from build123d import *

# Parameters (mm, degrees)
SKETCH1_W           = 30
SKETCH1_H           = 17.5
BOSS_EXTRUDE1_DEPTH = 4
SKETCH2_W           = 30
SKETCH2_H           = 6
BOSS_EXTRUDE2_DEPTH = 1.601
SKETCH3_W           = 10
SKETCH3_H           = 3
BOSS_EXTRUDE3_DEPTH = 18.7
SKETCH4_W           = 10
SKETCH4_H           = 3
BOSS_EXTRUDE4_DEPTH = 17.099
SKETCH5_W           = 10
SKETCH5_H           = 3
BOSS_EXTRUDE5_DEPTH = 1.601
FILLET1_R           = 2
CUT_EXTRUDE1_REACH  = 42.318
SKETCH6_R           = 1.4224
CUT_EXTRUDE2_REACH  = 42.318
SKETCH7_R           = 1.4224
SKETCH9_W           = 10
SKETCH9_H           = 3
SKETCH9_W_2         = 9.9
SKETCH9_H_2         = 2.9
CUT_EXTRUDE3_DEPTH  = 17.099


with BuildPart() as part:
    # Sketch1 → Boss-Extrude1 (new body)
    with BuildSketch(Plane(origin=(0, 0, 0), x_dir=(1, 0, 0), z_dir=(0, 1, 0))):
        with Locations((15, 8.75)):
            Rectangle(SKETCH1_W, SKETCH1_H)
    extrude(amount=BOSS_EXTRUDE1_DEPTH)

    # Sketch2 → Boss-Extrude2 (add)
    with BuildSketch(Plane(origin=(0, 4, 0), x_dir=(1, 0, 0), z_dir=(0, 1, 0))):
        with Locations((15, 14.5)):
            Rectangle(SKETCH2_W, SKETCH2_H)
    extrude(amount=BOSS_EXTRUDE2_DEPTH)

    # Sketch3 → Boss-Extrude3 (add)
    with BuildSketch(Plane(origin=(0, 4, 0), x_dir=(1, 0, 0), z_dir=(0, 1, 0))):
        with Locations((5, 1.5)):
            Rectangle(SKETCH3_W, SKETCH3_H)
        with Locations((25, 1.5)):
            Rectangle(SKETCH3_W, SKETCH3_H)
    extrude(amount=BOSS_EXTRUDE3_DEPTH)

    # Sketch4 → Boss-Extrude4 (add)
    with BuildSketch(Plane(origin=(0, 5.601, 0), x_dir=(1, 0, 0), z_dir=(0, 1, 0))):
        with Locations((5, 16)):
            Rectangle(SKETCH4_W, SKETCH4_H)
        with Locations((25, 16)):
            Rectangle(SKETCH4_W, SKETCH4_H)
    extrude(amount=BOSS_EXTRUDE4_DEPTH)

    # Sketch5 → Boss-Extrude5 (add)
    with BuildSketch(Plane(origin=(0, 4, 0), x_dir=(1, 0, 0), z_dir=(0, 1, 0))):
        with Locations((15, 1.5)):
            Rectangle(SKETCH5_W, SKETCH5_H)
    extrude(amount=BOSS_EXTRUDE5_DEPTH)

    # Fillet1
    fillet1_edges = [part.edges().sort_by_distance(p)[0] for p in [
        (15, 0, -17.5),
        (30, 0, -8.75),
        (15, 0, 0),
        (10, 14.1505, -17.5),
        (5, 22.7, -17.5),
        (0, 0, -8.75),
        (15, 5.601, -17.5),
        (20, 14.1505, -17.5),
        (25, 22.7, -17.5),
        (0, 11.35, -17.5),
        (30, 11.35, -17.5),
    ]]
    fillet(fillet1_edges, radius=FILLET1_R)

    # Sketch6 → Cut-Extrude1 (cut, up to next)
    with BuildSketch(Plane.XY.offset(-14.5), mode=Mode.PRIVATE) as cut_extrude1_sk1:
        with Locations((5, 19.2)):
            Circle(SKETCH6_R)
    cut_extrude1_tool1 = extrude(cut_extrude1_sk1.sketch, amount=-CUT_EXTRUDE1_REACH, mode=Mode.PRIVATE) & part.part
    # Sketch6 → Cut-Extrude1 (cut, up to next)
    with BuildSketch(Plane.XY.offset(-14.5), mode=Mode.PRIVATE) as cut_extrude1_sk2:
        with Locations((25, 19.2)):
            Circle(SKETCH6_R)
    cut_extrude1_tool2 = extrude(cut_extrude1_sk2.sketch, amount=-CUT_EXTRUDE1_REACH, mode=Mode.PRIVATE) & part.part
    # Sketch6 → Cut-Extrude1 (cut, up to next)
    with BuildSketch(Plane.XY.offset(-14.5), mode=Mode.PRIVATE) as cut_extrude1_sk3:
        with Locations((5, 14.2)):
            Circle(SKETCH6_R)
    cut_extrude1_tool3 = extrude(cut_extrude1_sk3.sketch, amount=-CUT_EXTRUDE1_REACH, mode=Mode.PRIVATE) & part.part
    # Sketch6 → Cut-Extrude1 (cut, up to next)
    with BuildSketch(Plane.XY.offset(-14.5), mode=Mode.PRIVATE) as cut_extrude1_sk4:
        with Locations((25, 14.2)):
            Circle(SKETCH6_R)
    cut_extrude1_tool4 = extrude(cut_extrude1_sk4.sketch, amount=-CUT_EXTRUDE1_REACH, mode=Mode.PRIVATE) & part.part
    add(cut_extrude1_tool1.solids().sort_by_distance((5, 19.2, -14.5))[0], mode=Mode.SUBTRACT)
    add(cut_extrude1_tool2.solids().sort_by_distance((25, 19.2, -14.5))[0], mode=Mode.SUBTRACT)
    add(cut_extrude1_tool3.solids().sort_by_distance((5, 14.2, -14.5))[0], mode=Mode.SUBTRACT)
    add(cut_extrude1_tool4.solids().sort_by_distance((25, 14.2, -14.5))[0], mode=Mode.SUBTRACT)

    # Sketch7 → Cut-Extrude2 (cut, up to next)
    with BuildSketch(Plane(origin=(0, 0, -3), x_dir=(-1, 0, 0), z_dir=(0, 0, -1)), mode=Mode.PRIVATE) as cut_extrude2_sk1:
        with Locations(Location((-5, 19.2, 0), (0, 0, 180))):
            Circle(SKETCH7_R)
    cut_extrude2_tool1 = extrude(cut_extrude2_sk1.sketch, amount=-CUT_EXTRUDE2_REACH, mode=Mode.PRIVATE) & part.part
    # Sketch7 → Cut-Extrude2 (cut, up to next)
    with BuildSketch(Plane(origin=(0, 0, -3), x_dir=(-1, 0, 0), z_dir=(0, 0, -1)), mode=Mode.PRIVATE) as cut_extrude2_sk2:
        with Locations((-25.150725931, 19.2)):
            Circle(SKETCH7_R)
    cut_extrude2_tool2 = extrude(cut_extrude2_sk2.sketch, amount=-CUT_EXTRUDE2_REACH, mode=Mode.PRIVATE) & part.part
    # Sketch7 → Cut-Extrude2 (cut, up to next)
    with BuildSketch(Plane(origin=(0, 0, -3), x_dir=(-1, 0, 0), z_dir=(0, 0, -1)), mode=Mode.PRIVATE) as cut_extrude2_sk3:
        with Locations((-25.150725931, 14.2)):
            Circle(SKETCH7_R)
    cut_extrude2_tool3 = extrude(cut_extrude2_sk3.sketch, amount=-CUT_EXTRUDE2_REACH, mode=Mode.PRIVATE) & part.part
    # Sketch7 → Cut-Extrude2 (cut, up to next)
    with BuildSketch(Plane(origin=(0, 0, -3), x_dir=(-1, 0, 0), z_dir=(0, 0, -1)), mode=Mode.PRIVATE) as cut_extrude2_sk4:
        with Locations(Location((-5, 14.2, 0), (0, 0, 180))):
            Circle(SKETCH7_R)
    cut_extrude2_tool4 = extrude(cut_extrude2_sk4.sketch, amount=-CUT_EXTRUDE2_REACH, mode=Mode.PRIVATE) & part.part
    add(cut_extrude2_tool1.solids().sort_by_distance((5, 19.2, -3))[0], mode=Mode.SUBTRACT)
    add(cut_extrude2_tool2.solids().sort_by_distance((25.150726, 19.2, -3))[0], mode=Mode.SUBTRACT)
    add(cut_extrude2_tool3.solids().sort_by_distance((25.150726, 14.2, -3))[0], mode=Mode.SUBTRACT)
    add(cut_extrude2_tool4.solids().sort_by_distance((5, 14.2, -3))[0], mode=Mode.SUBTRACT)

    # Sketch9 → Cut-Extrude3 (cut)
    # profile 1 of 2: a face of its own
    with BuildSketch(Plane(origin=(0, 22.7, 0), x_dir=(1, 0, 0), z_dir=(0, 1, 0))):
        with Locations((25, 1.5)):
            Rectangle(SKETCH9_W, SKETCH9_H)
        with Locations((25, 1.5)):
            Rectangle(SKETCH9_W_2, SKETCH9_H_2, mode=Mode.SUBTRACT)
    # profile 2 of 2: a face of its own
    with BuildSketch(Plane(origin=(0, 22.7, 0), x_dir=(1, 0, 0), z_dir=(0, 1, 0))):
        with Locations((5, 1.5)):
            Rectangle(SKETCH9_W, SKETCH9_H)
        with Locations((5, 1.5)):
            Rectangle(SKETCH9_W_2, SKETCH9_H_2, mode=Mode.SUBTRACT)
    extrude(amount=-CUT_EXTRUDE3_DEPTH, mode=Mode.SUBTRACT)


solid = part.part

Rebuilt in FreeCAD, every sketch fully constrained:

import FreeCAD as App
import Part
import Sketcher

V = App.Vector
Q = App.Units.Quantity


def edges_at(feature, points):
    """Names of the edges that pass closest to the given points."""
    edges = feature.Shape.Edges
    near = lambda p: min(range(len(edges)), key=lambda i: edges[i].distToShape(Part.Vertex(*p))[0])
    return sorted({f"Edge{near(p) + 1}" for p in points})


def add_polygon(sketch, points):
    """Adds a closed chain of lines whose ends are joined by coincident constraints."""
    first, n = sketch.GeometryCount, len(points)
    for a, b in zip(points, points[1:] + points[:1]):
        sketch.addGeometry(Part.LineSegment(App.Vector(*a, 0), App.Vector(*b, 0)), False)
    for i in range(n):
        sketch.addConstraint(Sketcher.Constraint("Coincident", first + i, 2, first + (i + 1) % n, 1))

doc = App.newDocument("Part")
body = doc.addObject("PartDesign::Body", "Body")

sketch1 = body.newObject("Sketcher::SketchObject", "Sketch")
sketch1.AttachmentSupport = (doc.getObject("XZ_Plane"), [""])
sketch1.MapMode = "FlatFace"
add_polygon(sketch1, [(0, -18), (0, 0), (30, 0), (30, -18)])
sketch1.addConstraint(Sketcher.Constraint("Vertical", 0))
sketch1.addConstraint(Sketcher.Constraint("Horizontal", 1))
sketch1.addConstraint(Sketcher.Constraint("Vertical", 2))
sketch1.addConstraint(Sketcher.Constraint("Horizontal", 3))
sketch1.addConstraint(Sketcher.Constraint("Coincident", 0, 2, -1, 1))
sketch1.addConstraint(Sketcher.Constraint("DistanceX", 1, 1, 1, 2, Q("30 mm")))
sketch1.addConstraint(Sketcher.Constraint("DistanceY", 0, 1, 0, 2, Q("17.5 mm")))
pad1 = body.newObject("PartDesign::Pad", "Pad")
pad1.Profile = sketch1
pad1.Length = 4
pad1.Reversed = True

sketch2 = body.newObject("Sketcher::SketchObject", "Sketch001")
sketch2.AttachmentSupport = (doc.getObject("XZ_Plane"), [""])
sketch2.MapMode = "FlatFace"
sketch2.AttachmentOffset = App.Placement(V(0, 0, -4), App.Rotation())
add_polygon(sketch2, [(0, -18), (0, -12), (30, -12), (30, -18)])
sketch2.addConstraint(Sketcher.Constraint("Vertical", 0))
sketch2.addConstraint(Sketcher.Constraint("Horizontal", 1))
sketch2.addConstraint(Sketcher.Constraint("Vertical", 2))
sketch2.addConstraint(Sketcher.Constraint("Horizontal", 3))
sketch2.addConstraint(Sketcher.Constraint("PointOnObject", 0, 2, -2))
sketch2.addConstraint(Sketcher.Constraint("DistanceX", 1, 1, 1, 2, Q("30 mm")))
sketch2.addConstraint(Sketcher.Constraint("DistanceY", 0, 1, 0, 2, Q("6 mm")))
sketch2.addConstraint(Sketcher.Constraint("DistanceY", 0, 2, -1, 1, Q("11.5 mm")))
pad2 = body.newObject("PartDesign::Pad", "Pad001")
pad2.Profile = sketch2
pad2.Length = 1.601
pad2.Reversed = True

sketch3 = body.newObject("Sketcher::SketchObject", "Sketch002")
sketch3.AttachmentSupport = (doc.getObject("XZ_Plane"), [""])
sketch3.MapMode = "FlatFace"
sketch3.AttachmentOffset = App.Placement(V(0, 0, -4), App.Rotation())
add_polygon(sketch3, [(0, -3), (0, 0), (10, 0), (10, -3)])
add_polygon(sketch3, [(20, -3), (20, 0), (30, 0), (30, -3)])
sketch3.addConstraint(Sketcher.Constraint("Vertical", 0))
sketch3.addConstraint(Sketcher.Constraint("Horizontal", 1))
sketch3.addConstraint(Sketcher.Constraint("Vertical", 2))
sketch3.addConstraint(Sketcher.Constraint("Horizontal", 3))
sketch3.addConstraint(Sketcher.Constraint("Vertical", 4))
sketch3.addConstraint(Sketcher.Constraint("Horizontal", 5))
sketch3.addConstraint(Sketcher.Constraint("Vertical", 6))
sketch3.addConstraint(Sketcher.Constraint("Horizontal", 7))
sketch3.addConstraint(Sketcher.Constraint("Coincident", 0, 2, -1, 1))
sketch3.addConstraint(Sketcher.Constraint("PointOnObject", 4, 2, -1))
sketch3.addConstraint(Sketcher.Constraint("Horizontal", 3, 2, 6, 2))
sketch3.addConstraint(Sketcher.Constraint("Equal", 3, 5))
sketch3.addConstraint(Sketcher.Constraint("DistanceX", 1, 1, 1, 2, Q("10 mm")))
sketch3.addConstraint(Sketcher.Constraint("DistanceY", 0, 1, 0, 2, Q("3 mm")))
sketch3.addConstraint(Sketcher.Constraint("DistanceX", -1, 1, 4, 2, Q("20 mm")))
pad3 = body.newObject("PartDesign::Pad", "Pad002")
pad3.Profile = sketch3
pad3.Length = 18.7
pad3.Reversed = True

sketch4 = body.newObject("Sketcher::SketchObject", "Sketch003")
sketch4.AttachmentSupport = (doc.getObject("XZ_Plane"), [""])
sketch4.MapMode = "FlatFace"
sketch4.AttachmentOffset = App.Placement(V(0, 0, -5.601), App.Rotation())
add_polygon(sketch4, [(0, -17.5), (0, -14.5), (10, -14.5), (10, -17.5)])
add_polygon(sketch4, [(20, -17.5), (20, -14.5), (30, -14.5), (30, -17.5)])
sketch4.addConstraint(Sketcher.Constraint("Vertical", 0))
sketch4.addConstraint(Sketcher.Constraint("Horizontal", 1))
sketch4.addConstraint(Sketcher.Constraint("Vertical", 2))
sketch4.addConstraint(Sketcher.Constraint("Horizontal", 3))
sketch4.addConstraint(Sketcher.Constraint("Vertical", 4))
sketch4.addConstraint(Sketcher.Constraint("Horizontal", 5))
sketch4.addConstraint(Sketcher.Constraint("Vertical", 6))
sketch4.addConstraint(Sketcher.Constraint("Horizontal", 7))
sketch4.addConstraint(Sketcher.Constraint("PointOnObject", 0, 2, -2))
sketch4.addConstraint(Sketcher.Constraint("Horizontal", 1, 2, 4, 2))
sketch4.addConstraint(Sketcher.Constraint("Horizontal", 3, 2, 6, 2))
sketch4.addConstraint(Sketcher.Constraint("Equal", 3, 5))
sketch4.addConstraint(Sketcher.Constraint("DistanceX", 1, 1, 1, 2, Q("10 mm")))
sketch4.addConstraint(Sketcher.Constraint("DistanceY", 0, 1, 0, 2, Q("3 mm")))
sketch4.addConstraint(Sketcher.Constraint("DistanceX", -1, 1, 4, 2, Q("20 mm")))
sketch4.addConstraint(Sketcher.Constraint("DistanceY", 0, 2, -1, 1, Q("14.5 mm")))
pad4 = body.newObject("PartDesign::Pad", "Pad003")
pad4.Profile = sketch4
pad4.Length = 17.099
pad4.Reversed = True

sketch5 = body.newObject("Sketcher::SketchObject", "Sketch004")
sketch5.AttachmentSupport = (doc.getObject("XZ_Plane"), [""])
sketch5.MapMode = "FlatFace"
sketch5.AttachmentOffset = App.Placement(V(0, 0, -4), App.Rotation())
add_polygon(sketch5, [(10, -3), (10, 0), (20, 0), (20, -3)])
sketch5.addConstraint(Sketcher.Constraint("Vertical", 0))
sketch5.addConstraint(Sketcher.Constraint("Horizontal", 1))
sketch5.addConstraint(Sketcher.Constraint("Vertical", 2))
sketch5.addConstraint(Sketcher.Constraint("Horizontal", 3))
sketch5.addConstraint(Sketcher.Constraint("PointOnObject", 0, 2, -1))
sketch5.addConstraint(Sketcher.Constraint("DistanceX", 1, 1, 1, 2, Q("10 mm")))
sketch5.addConstraint(Sketcher.Constraint("DistanceY", 0, 1, 0, 2, Q("3 mm")))
sketch5.addConstraint(Sketcher.Constraint("DistanceX", -1, 1, 0, 2, Q("10 mm")))
pad5 = body.newObject("PartDesign::Pad", "Pad004")
pad5.Profile = sketch5
pad5.Length = 1.601
pad5.Reversed = True
doc.recompute()

fillet = body.newObject("PartDesign::Fillet", "Fillet")
fillet.Base = (pad5, edges_at(pad5, [
    (15, 0, -17.5),
    (30, 0, -8.75),
    (15, 0, 0),
    (10, 14.15, -17.5),
    (5, 22.7, -17.5),
    (0, 0, -8.75),
    (15, 5.601, -17.5),
    (20, 14.15, -17.5),
    (25, 22.7, -17.5),
    (0, 11.35, -17.5),
    (30, 11.35, -17.5),
]))
fillet.Radius = 2

sketch6 = body.newObject("Sketcher::SketchObject", "Sketch005")
sketch6.AttachmentSupport = (doc.getObject("XY_Plane"), [""])
sketch6.MapMode = "FlatFace"
sketch6.AttachmentOffset = App.Placement(V(0, 0, -14.5), App.Rotation())
sketch6.addGeometry(Part.Circle(V(5, 19.2, 0), V(0, 0, 1), 1.4), False)
sketch6.addConstraint(Sketcher.Constraint("DistanceX", -1, 1, 0, 3, Q("5 mm")))
sketch6.addConstraint(Sketcher.Constraint("Diameter", 0, Q("2.8448 mm")))
sketch6.addConstraint(Sketcher.Constraint("DistanceY", -1, 1, 0, 3, Q("19.2 mm")))
pocket1 = body.newObject("PartDesign::Pocket", "Pocket")
pocket1.Profile = sketch6
pocket1.Type = "UpToFirst"

sketch7 = body.newObject("Sketcher::SketchObject", "Sketch006")
sketch7.AttachmentSupport = (doc.getObject("XY_Plane"), [""])
sketch7.MapMode = "FlatFace"
sketch7.AttachmentOffset = App.Placement(V(0, 0, -14.5), App.Rotation())
sketch7.addGeometry(Part.Circle(V(25, 19.2, 0), V(0, 0, 1), 1.4), False)
sketch7.addConstraint(Sketcher.Constraint("DistanceX", -1, 1, 0, 3, Q("25 mm")))
sketch7.addConstraint(Sketcher.Constraint("Diameter", 0, Q("2.8448 mm")))
sketch7.addConstraint(Sketcher.Constraint("DistanceY", -1, 1, 0, 3, Q("19.2 mm")))
pocket2 = body.newObject("PartDesign::Pocket", "Pocket001")
pocket2.Profile = sketch7
pocket2.Type = "UpToFirst"

sketch8 = body.newObject("Sketcher::SketchObject", "Sketch007")
sketch8.AttachmentSupport = (doc.getObject("XY_Plane"), [""])
sketch8.MapMode = "FlatFace"
sketch8.AttachmentOffset = App.Placement(V(0, 0, -14.5), App.Rotation())
sketch8.addGeometry(Part.Circle(V(5, 14.2, 0), V(0, 0, 1), 1.4), False)
sketch8.addConstraint(Sketcher.Constraint("DistanceX", -1, 1, 0, 3, Q("5 mm")))
sketch8.addConstraint(Sketcher.Constraint("Diameter", 0, Q("2.8448 mm")))
sketch8.addConstraint(Sketcher.Constraint("DistanceY", -1, 1, 0, 3, Q("14.2 mm")))
pocket3 = body.newObject("PartDesign::Pocket", "Pocket002")
pocket3.Profile = sketch8
pocket3.Type = "UpToFirst"

sketch9 = body.newObject("Sketcher::SketchObject", "Sketch008")
sketch9.AttachmentSupport = (doc.getObject("XY_Plane"), [""])
sketch9.MapMode = "FlatFace"
sketch9.AttachmentOffset = App.Placement(V(0, 0, -14.5), App.Rotation())
sketch9.addGeometry(Part.Circle(V(25, 14.2, 0), V(0, 0, 1), 1.4), False)
sketch9.addConstraint(Sketcher.Constraint("DistanceX", -1, 1, 0, 3, Q("25 mm")))
sketch9.addConstraint(Sketcher.Constraint("Diameter", 0, Q("2.8448 mm")))
sketch9.addConstraint(Sketcher.Constraint("DistanceY", -1, 1, 0, 3, Q("14.2 mm")))
pocket4 = body.newObject("PartDesign::Pocket", "Pocket003")
pocket4.Profile = sketch9
pocket4.Type = "UpToFirst"

sketch10 = body.newObject("Sketcher::SketchObject", "Sketch009")
sketch10.AttachmentSupport = (doc.getObject("XY_Plane"), [""])
sketch10.MapMode = "FlatFace"
sketch10.AttachmentOffset = App.Placement(V(0, 0, -3), App.Rotation())
sketch10.addGeometry(Part.Circle(V(5, 19.2, 0), V(0, 0, 1), 1.4), False)
sketch10.addConstraint(Sketcher.Constraint("DistanceX", -1, 1, 0, 3, Q("5 mm")))
sketch10.addConstraint(Sketcher.Constraint("Diameter", 0, Q("2.8448 mm")))
sketch10.addConstraint(Sketcher.Constraint("DistanceY", -1, 1, 0, 3, Q("19.2 mm")))
pocket5 = body.newObject("PartDesign::Pocket", "Pocket004")
pocket5.Profile = sketch10
pocket5.Type = "UpToFirst"
pocket5.Reversed = True

sketch11 = body.newObject("Sketcher::SketchObject", "Sketch010")
sketch11.AttachmentSupport = (doc.getObject("XY_Plane"), [""])
sketch11.MapMode = "FlatFace"
sketch11.AttachmentOffset = App.Placement(V(0, 0, -3), App.Rotation())
sketch11.addGeometry(Part.Circle(V(25.2, 19.2, 0), V(0, 0, 1), 1.4), False)
sketch11.addConstraint(Sketcher.Constraint("Diameter", 0, Q("2.8448 mm")))
sketch11.addConstraint(Sketcher.Constraint("DistanceY", -1, 1, 0, 3, Q("19.2 mm")))
sketch11.addConstraint(Sketcher.Constraint("DistanceX", -1, 1, 0, 3, Q("25.150726 mm")))
pocket6 = body.newObject("PartDesign::Pocket", "Pocket005")
pocket6.Profile = sketch11
pocket6.Type = "UpToFirst"
pocket6.Reversed = True

sketch12 = body.newObject("Sketcher::SketchObject", "Sketch011")
sketch12.AttachmentSupport = (doc.getObject("XY_Plane"), [""])
sketch12.MapMode = "FlatFace"
sketch12.AttachmentOffset = App.Placement(V(0, 0, -3), App.Rotation())
sketch12.addGeometry(Part.Circle(V(25.2, 14.2, 0), V(0, 0, 1), 1.4), False)
sketch12.addConstraint(Sketcher.Constraint("Diameter", 0, Q("2.8448 mm")))
sketch12.addConstraint(Sketcher.Constraint("DistanceY", -1, 1, 0, 3, Q("14.2 mm")))
sketch12.addConstraint(Sketcher.Constraint("DistanceX", -1, 1, 0, 3, Q("25.150726 mm")))
pocket7 = body.newObject("PartDesign::Pocket", "Pocket006")
pocket7.Profile = sketch12
pocket7.Type = "UpToFirst"
pocket7.Reversed = True

sketch13 = body.newObject("Sketcher::SketchObject", "Sketch012")
sketch13.AttachmentSupport = (doc.getObject("XY_Plane"), [""])
sketch13.MapMode = "FlatFace"
sketch13.AttachmentOffset = App.Placement(V(0, 0, -3), App.Rotation())
sketch13.addGeometry(Part.Circle(V(5, 14.2, 0), V(0, 0, 1), 1.4), False)
sketch13.addConstraint(Sketcher.Constraint("DistanceX", -1, 1, 0, 3, Q("5 mm")))
sketch13.addConstraint(Sketcher.Constraint("Diameter", 0, Q("2.8448 mm")))
sketch13.addConstraint(Sketcher.Constraint("DistanceY", -1, 1, 0, 3, Q("14.2 mm")))
pocket8 = body.newObject("PartDesign::Pocket", "Pocket007")
pocket8.Profile = sketch13
pocket8.Type = "UpToFirst"
pocket8.Reversed = True

sketch14 = body.newObject("Sketcher::SketchObject", "Sketch013")
sketch14.AttachmentSupport = (doc.getObject("XZ_Plane"), [""])
sketch14.MapMode = "FlatFace"
sketch14.AttachmentOffset = App.Placement(V(0, 0, -22.7), App.Rotation())
add_polygon(sketch14, [(20, -3), (20, 0), (30, 0), (30, -3)])
add_polygon(sketch14, [(29.9, -0.1), (20.1, -0.1), (20.1, -3), (29.9, -3)])
add_polygon(sketch14, [(0, -3), (0, 0), (10, 0), (10, -3)])
add_polygon(sketch14, [(9.9, -0.1), (0.1, -0.1), (0.1, -3), (9.9, -3)])
sketch14.addConstraint(Sketcher.Constraint("Vertical", 0))
sketch14.addConstraint(Sketcher.Constraint("Horizontal", 1))
sketch14.addConstraint(Sketcher.Constraint("Vertical", 2))
sketch14.addConstraint(Sketcher.Constraint("Horizontal", 3))
sketch14.addConstraint(Sketcher.Constraint("Horizontal", 4))
sketch14.addConstraint(Sketcher.Constraint("Vertical", 5))
sketch14.addConstraint(Sketcher.Constraint("Horizontal", 6))
sketch14.addConstraint(Sketcher.Constraint("Vertical", 7))
sketch14.addConstraint(Sketcher.Constraint("Vertical", 8))
sketch14.addConstraint(Sketcher.Constraint("Horizontal", 9))
sketch14.addConstraint(Sketcher.Constraint("Vertical", 10))
sketch14.addConstraint(Sketcher.Constraint("Horizontal", 11))
sketch14.addConstraint(Sketcher.Constraint("Horizontal", 12))
sketch14.addConstraint(Sketcher.Constraint("Vertical", 13))
sketch14.addConstraint(Sketcher.Constraint("Horizontal", 14))
sketch14.addConstraint(Sketcher.Constraint("Vertical", 15))
sketch14.addConstraint(Sketcher.Constraint("Coincident", 8, 2, -1, 1))
sketch14.addConstraint(Sketcher.Constraint("PointOnObject", 0, 2, -1))
sketch14.addConstraint(Sketcher.Constraint("Horizontal", 3, 2, 10, 2))
sketch14.addConstraint(Sketcher.Constraint("Horizontal", 7, 2, 12, 2))
sketch14.addConstraint(Sketcher.Constraint("Horizontal", 6, 2, 13, 2))
sketch14.addConstraint(Sketcher.Constraint("Equal", 3, 9))
sketch14.addConstraint(Sketcher.Constraint("Equal", 6, 12))
sketch14.addConstraint(Sketcher.Constraint("DistanceX", 1, 1, 1, 2, Q("10 mm")))
sketch14.addConstraint(Sketcher.Constraint("DistanceY", 0, 1, 0, 2, Q("3 mm")))
sketch14.addConstraint(Sketcher.Constraint("DistanceX", 4, 2, 4, 1, Q("9.9 mm")))
sketch14.addConstraint(Sketcher.Constraint("DistanceY", 5, 2, 5, 1, Q("2.9 mm")))
sketch14.addConstraint(Sketcher.Constraint("DistanceX", -1, 1, 0, 2, Q("20 mm")))
sketch14.addConstraint(Sketcher.Constraint("DistanceX", -1, 1, 4, 2, Q("20.05 mm")))
sketch14.addConstraint(Sketcher.Constraint("DistanceY", 4, 2, -1, 1, Q("0.05 mm")))
sketch14.addConstraint(Sketcher.Constraint("DistanceX", -1, 1, 12, 2, Q("0.05 mm")))
pocket9 = body.newObject("PartDesign::Pocket", "Pocket008")
pocket9.Profile = sketch14
pocket9.Length = 17.099
pocket9.Reversed = True

doc.recompute()
